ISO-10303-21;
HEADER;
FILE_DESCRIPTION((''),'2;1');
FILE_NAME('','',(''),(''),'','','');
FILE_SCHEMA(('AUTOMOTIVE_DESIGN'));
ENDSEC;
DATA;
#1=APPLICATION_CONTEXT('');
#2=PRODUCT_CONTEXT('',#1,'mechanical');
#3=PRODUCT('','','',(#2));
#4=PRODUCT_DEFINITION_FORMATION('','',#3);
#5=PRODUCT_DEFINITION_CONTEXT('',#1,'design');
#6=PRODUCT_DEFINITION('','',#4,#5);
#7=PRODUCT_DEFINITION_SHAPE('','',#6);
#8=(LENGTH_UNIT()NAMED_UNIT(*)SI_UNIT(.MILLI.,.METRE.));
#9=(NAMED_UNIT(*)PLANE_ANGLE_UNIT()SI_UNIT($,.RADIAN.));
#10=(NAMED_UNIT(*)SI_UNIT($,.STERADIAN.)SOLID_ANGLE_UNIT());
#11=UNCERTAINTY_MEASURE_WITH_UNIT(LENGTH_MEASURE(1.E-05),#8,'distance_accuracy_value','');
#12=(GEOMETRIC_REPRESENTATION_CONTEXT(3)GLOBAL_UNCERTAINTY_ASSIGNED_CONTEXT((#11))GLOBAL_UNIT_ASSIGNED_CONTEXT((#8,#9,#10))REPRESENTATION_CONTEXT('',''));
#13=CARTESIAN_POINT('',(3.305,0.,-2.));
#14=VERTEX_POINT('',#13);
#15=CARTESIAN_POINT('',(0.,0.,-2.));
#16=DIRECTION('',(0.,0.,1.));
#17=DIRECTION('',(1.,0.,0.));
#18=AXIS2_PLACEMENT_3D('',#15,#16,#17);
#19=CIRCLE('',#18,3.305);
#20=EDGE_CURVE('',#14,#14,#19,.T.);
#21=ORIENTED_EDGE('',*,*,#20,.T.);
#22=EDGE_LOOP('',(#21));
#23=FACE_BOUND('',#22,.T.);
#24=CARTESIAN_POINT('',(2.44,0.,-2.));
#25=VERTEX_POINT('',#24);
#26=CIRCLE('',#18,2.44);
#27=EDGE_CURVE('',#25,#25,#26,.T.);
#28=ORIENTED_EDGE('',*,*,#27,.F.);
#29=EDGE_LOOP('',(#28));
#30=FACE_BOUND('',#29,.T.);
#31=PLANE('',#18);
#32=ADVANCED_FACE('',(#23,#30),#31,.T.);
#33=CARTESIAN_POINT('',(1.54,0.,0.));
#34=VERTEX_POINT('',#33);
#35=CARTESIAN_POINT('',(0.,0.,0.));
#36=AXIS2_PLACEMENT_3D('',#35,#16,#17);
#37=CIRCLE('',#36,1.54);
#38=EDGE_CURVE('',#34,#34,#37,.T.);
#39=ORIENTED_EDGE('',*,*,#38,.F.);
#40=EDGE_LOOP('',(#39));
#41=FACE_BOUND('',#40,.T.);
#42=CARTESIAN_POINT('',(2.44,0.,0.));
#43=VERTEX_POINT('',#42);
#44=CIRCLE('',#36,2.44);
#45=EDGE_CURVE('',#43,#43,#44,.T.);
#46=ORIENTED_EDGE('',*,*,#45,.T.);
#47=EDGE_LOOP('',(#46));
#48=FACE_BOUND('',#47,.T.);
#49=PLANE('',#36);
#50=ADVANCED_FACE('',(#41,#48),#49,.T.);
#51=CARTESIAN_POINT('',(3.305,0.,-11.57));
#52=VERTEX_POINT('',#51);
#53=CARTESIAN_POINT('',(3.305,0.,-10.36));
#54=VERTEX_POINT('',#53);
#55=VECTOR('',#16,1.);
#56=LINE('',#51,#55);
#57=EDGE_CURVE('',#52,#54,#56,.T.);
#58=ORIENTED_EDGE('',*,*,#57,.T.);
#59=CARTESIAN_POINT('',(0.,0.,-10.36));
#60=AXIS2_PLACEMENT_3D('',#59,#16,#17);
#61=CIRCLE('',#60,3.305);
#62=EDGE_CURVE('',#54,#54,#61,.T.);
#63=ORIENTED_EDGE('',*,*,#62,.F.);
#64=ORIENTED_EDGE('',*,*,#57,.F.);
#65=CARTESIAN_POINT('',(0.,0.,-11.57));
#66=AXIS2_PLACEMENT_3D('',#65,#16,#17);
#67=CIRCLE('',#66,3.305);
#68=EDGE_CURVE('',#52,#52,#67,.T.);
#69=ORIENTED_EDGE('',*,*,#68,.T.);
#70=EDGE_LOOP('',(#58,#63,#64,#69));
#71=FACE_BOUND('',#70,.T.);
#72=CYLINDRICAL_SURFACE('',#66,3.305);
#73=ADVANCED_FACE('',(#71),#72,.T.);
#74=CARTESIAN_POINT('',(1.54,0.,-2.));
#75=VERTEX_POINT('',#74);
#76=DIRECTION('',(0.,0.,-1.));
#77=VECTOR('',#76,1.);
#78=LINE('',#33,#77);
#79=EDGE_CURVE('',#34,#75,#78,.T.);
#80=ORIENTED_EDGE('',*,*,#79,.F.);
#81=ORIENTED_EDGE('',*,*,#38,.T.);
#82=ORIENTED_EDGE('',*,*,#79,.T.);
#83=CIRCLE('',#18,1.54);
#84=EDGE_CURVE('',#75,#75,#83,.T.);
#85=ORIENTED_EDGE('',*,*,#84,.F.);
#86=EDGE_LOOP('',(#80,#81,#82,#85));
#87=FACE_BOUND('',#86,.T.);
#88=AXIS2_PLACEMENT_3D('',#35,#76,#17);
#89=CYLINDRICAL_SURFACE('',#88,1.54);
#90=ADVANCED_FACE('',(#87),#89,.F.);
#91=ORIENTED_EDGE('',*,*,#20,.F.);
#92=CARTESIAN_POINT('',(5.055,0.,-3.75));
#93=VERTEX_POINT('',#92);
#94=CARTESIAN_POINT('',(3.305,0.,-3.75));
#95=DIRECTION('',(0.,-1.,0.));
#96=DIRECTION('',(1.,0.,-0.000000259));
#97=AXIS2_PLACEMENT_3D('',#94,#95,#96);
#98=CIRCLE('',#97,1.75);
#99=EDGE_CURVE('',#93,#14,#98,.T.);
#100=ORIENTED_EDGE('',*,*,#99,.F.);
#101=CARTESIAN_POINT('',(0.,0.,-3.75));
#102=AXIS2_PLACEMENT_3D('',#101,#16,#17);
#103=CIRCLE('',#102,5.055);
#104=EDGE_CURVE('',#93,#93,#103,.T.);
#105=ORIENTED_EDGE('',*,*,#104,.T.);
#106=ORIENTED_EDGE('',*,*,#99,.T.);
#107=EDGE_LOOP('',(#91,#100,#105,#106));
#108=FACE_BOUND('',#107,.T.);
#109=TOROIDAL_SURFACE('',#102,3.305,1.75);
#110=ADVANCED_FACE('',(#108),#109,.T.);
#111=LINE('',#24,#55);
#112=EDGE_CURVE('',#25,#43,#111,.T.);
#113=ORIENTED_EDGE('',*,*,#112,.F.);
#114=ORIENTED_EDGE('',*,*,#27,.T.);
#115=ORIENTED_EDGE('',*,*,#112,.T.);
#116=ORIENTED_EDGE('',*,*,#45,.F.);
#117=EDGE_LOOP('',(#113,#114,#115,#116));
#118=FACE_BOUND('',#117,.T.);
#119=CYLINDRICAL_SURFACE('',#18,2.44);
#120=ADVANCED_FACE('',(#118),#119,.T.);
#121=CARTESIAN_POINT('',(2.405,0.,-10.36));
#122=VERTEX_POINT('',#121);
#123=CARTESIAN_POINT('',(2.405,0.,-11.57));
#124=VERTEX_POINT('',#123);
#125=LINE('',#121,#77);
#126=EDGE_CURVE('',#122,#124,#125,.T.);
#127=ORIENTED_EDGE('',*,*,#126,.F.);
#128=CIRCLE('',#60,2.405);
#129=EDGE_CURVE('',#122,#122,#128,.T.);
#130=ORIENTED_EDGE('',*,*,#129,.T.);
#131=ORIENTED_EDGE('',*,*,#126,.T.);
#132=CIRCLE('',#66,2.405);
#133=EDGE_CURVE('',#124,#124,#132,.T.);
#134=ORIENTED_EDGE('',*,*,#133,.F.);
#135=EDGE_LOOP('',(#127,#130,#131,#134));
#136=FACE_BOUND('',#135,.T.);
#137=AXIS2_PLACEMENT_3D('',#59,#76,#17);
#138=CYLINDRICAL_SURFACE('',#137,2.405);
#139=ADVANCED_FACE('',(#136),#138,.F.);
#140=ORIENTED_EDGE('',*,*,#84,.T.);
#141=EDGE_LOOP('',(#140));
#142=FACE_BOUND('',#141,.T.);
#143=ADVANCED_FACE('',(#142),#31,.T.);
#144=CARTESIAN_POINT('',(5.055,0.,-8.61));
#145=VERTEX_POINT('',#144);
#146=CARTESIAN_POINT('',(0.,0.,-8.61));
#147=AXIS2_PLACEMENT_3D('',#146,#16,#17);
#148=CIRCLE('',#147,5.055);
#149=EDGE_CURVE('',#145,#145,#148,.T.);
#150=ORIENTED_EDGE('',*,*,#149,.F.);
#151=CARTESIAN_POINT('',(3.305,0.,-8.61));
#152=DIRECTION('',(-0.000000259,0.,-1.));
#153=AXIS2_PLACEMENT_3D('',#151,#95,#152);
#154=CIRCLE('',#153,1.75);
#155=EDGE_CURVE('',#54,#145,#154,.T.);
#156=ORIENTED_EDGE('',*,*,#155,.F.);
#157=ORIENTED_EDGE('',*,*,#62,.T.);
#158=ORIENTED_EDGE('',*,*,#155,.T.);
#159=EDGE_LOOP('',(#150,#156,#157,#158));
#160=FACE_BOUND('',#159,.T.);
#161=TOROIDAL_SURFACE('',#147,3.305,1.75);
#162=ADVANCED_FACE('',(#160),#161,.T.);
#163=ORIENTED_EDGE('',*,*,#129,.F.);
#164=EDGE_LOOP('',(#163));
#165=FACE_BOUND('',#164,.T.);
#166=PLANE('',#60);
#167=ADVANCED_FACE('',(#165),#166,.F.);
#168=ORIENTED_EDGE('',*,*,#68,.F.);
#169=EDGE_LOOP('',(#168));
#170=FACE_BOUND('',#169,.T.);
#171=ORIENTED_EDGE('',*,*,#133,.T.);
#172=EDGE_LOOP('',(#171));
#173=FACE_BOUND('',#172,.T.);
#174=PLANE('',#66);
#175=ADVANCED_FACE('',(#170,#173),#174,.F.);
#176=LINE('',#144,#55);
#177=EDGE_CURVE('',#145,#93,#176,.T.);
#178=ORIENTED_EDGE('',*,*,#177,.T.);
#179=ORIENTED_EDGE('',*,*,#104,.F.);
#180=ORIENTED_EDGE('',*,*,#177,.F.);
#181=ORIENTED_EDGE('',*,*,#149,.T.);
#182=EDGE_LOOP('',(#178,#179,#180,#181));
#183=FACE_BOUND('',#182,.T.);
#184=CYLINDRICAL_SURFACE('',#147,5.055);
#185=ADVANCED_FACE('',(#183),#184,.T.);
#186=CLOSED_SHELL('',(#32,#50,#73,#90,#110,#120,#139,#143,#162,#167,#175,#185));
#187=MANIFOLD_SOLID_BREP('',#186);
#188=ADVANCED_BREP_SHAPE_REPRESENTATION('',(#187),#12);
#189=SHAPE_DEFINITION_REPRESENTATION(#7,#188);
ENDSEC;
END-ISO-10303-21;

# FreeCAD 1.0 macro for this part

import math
import FreeCAD as App
import Part
import Sketcher
Q = App.Units.Quantity

doc = App.newDocument("Part")
params = doc.addObject("Spreadsheet::Sheet", "Params")
for row, (alias, value) in enumerate([
    ("sketch1_height", "2 mm"),
    ("sketch1_radius", "1.75 mm"),
    ("sketch1_width", "0.9 mm"),
    ("sketch1_width2", "1.54 mm"),
    ("sketch1_height2", "8.36 mm"),
    ("revolution_angle", "360 deg"),
], start=1):
    params.set(f"A{row}", alias)
    params.set(f"B{row}", "=" + value)
    params.setAlias(f"B{row}", alias)

body = doc.addObject("PartDesign::Body", "Body")

# Sketch on XZ plane
sketch1 = body.newObject("Sketcher::SketchObject", "Sketch")
sketch1.AttachmentSupport = (doc.getObject("XZ_Plane"), [""])
sketch1.MapMode = "FlatFace"
sketch1.addGeometry([
    Part.LineSegment(App.Vector(2.4, 0, 0), App.Vector(1.5, 0, 0)),  # 0
    Part.LineSegment(App.Vector(1.5, 0, 0), App.Vector(1.5, -2, 0)),  # 1
    Part.LineSegment(App.Vector(1.5, -2, 0), App.Vector(0, -2, 0)),  # 2
    Part.LineSegment(App.Vector(0, -2, 0), App.Vector(0, -10.4, 0)),  # 3
    Part.LineSegment(App.Vector(0, -10.4, 0), App.Vector(2.4, -10.4, 0)),  # 4
    Part.LineSegment(App.Vector(2.4, -10.4, 0), App.Vector(2.4, -11.6, 0)),  # 5
    Part.LineSegment(App.Vector(2.4, -11.6, 0), App.Vector(3.3, -11.6, 0)),  # 6
    Part.LineSegment(App.Vector(3.3, -11.6, 0), App.Vector(3.3, -10.4, 0)),  # 7
    Part.ArcOfCircle(Part.Circle(App.Vector(3.3, -8.6, 0), App.Vector(0, 0, 1), 1.7), math.radians(-90), math.radians(0)),  # 8
    Part.LineSegment(App.Vector(5.1, -8.6, 0), App.Vector(5.1, -3.8, 0)),  # 9
    Part.ArcOfCircle(Part.Circle(App.Vector(3.3, -3.7, 0), App.Vector(0, 0, 1), 1.7), math.radians(0), math.radians(90)),  # 10
    Part.LineSegment(App.Vector(3.3, -2, 0), App.Vector(2.4, -2, 0)),  # 11
    Part.LineSegment(App.Vector(2.4, -2, 0), App.Vector(2.4, 0, 0)),  # 12
], False)
sketch1.addConstraint([
    Sketcher.Constraint("Coincident", 0, 2, 1, 1),
    Sketcher.Constraint("Coincident", 1, 2, 2, 1),
    Sketcher.Constraint("Coincident", 2, 2, 3, 1),
    Sketcher.Constraint("Coincident", 3, 2, 4, 1),
    Sketcher.Constraint("Coincident", 4, 2, 5, 1),
    Sketcher.Constraint("Coincident", 5, 2, 6, 1),
    Sketcher.Constraint("Coincident", 6, 2, 7, 1),
    Sketcher.Constraint("Coincident", 7, 2, 8, 1),
    Sketcher.Constraint("Tangent", 8, 2, 9, 1),
    Sketcher.Constraint("Tangent", 9, 2, 10, 1),
    Sketcher.Constraint("Tangent", 10, 2, 11, 1),
    Sketcher.Constraint("Coincident", 11, 2, 12, 1),
    Sketcher.Constraint("Coincident", 12, 2, 0, 1),
    Sketcher.Constraint("Horizontal", 0),
    Sketcher.Constraint("Vertical", 1),
    Sketcher.Constraint("Horizontal", 2),
    Sketcher.Constraint("Vertical", 3),
    Sketcher.Constraint("Horizontal", 4),
    Sketcher.Constraint("Vertical", 5),
    Sketcher.Constraint("Horizontal", 6),
    Sketcher.Constraint("Vertical", 7),
    Sketcher.Constraint("Vertical", 9),
    Sketcher.Constraint("Horizontal", 11),
    Sketcher.Constraint("Vertical", 12),
    Sketcher.Constraint("Equal", 8, 10),
    Sketcher.Constraint("PointOnObject", 0, 2, -1),
    Sketcher.Constraint("PointOnObject", 2, 2, -2),
    Sketcher.Constraint("Horizontal", 4, 2, 7, 2),
    Sketcher.Constraint("Horizontal", 2, 2, 10, 2),
    Sketcher.Constraint("Vertical", 10, 3, 6, 2),
    Sketcher.Constraint("Equal", 0, 6),
    Sketcher.Constraint("DistanceY", 1, 2, 1, 1, Q("2 mm")),
    Sketcher.Constraint("Radius", 8, Q("1.75 mm")),
    Sketcher.Constraint("DistanceX", 0, 2, 0, 1, Q("0.9 mm")),
    Sketcher.Constraint("DistanceX", 2, 2, 2, 1, Q("1.54 mm")),
    Sketcher.Constraint("DistanceY", 3, 2, 3, 1, Q("8.36 mm")),
    Sketcher.Constraint("DistanceY", 5, 2, 5, 1, Q("1.21 mm")),
    Sketcher.Constraint("DistanceX", 4, 1, 4, 2, Q("2.405 mm")),
])
sketch1.setExpression("Constraints[31]", "Params.sketch1_height")
sketch1.setExpression("Constraints[32]", "Params.sketch1_radius")
sketch1.setExpression("Constraints[33]", "Params.sketch1_width")
sketch1.setExpression("Constraints[34]", "Params.sketch1_width2")
sketch1.setExpression("Constraints[35]", "Params.sketch1_height2")
revolution = body.newObject("PartDesign::Revolution", "Revolution")
revolution.Profile = sketch1
revolution.ReferenceAxis = (sketch1, ["V_Axis"])
revolution.setExpression("Angle", "Params.revolution_angle")

doc.recompute()
